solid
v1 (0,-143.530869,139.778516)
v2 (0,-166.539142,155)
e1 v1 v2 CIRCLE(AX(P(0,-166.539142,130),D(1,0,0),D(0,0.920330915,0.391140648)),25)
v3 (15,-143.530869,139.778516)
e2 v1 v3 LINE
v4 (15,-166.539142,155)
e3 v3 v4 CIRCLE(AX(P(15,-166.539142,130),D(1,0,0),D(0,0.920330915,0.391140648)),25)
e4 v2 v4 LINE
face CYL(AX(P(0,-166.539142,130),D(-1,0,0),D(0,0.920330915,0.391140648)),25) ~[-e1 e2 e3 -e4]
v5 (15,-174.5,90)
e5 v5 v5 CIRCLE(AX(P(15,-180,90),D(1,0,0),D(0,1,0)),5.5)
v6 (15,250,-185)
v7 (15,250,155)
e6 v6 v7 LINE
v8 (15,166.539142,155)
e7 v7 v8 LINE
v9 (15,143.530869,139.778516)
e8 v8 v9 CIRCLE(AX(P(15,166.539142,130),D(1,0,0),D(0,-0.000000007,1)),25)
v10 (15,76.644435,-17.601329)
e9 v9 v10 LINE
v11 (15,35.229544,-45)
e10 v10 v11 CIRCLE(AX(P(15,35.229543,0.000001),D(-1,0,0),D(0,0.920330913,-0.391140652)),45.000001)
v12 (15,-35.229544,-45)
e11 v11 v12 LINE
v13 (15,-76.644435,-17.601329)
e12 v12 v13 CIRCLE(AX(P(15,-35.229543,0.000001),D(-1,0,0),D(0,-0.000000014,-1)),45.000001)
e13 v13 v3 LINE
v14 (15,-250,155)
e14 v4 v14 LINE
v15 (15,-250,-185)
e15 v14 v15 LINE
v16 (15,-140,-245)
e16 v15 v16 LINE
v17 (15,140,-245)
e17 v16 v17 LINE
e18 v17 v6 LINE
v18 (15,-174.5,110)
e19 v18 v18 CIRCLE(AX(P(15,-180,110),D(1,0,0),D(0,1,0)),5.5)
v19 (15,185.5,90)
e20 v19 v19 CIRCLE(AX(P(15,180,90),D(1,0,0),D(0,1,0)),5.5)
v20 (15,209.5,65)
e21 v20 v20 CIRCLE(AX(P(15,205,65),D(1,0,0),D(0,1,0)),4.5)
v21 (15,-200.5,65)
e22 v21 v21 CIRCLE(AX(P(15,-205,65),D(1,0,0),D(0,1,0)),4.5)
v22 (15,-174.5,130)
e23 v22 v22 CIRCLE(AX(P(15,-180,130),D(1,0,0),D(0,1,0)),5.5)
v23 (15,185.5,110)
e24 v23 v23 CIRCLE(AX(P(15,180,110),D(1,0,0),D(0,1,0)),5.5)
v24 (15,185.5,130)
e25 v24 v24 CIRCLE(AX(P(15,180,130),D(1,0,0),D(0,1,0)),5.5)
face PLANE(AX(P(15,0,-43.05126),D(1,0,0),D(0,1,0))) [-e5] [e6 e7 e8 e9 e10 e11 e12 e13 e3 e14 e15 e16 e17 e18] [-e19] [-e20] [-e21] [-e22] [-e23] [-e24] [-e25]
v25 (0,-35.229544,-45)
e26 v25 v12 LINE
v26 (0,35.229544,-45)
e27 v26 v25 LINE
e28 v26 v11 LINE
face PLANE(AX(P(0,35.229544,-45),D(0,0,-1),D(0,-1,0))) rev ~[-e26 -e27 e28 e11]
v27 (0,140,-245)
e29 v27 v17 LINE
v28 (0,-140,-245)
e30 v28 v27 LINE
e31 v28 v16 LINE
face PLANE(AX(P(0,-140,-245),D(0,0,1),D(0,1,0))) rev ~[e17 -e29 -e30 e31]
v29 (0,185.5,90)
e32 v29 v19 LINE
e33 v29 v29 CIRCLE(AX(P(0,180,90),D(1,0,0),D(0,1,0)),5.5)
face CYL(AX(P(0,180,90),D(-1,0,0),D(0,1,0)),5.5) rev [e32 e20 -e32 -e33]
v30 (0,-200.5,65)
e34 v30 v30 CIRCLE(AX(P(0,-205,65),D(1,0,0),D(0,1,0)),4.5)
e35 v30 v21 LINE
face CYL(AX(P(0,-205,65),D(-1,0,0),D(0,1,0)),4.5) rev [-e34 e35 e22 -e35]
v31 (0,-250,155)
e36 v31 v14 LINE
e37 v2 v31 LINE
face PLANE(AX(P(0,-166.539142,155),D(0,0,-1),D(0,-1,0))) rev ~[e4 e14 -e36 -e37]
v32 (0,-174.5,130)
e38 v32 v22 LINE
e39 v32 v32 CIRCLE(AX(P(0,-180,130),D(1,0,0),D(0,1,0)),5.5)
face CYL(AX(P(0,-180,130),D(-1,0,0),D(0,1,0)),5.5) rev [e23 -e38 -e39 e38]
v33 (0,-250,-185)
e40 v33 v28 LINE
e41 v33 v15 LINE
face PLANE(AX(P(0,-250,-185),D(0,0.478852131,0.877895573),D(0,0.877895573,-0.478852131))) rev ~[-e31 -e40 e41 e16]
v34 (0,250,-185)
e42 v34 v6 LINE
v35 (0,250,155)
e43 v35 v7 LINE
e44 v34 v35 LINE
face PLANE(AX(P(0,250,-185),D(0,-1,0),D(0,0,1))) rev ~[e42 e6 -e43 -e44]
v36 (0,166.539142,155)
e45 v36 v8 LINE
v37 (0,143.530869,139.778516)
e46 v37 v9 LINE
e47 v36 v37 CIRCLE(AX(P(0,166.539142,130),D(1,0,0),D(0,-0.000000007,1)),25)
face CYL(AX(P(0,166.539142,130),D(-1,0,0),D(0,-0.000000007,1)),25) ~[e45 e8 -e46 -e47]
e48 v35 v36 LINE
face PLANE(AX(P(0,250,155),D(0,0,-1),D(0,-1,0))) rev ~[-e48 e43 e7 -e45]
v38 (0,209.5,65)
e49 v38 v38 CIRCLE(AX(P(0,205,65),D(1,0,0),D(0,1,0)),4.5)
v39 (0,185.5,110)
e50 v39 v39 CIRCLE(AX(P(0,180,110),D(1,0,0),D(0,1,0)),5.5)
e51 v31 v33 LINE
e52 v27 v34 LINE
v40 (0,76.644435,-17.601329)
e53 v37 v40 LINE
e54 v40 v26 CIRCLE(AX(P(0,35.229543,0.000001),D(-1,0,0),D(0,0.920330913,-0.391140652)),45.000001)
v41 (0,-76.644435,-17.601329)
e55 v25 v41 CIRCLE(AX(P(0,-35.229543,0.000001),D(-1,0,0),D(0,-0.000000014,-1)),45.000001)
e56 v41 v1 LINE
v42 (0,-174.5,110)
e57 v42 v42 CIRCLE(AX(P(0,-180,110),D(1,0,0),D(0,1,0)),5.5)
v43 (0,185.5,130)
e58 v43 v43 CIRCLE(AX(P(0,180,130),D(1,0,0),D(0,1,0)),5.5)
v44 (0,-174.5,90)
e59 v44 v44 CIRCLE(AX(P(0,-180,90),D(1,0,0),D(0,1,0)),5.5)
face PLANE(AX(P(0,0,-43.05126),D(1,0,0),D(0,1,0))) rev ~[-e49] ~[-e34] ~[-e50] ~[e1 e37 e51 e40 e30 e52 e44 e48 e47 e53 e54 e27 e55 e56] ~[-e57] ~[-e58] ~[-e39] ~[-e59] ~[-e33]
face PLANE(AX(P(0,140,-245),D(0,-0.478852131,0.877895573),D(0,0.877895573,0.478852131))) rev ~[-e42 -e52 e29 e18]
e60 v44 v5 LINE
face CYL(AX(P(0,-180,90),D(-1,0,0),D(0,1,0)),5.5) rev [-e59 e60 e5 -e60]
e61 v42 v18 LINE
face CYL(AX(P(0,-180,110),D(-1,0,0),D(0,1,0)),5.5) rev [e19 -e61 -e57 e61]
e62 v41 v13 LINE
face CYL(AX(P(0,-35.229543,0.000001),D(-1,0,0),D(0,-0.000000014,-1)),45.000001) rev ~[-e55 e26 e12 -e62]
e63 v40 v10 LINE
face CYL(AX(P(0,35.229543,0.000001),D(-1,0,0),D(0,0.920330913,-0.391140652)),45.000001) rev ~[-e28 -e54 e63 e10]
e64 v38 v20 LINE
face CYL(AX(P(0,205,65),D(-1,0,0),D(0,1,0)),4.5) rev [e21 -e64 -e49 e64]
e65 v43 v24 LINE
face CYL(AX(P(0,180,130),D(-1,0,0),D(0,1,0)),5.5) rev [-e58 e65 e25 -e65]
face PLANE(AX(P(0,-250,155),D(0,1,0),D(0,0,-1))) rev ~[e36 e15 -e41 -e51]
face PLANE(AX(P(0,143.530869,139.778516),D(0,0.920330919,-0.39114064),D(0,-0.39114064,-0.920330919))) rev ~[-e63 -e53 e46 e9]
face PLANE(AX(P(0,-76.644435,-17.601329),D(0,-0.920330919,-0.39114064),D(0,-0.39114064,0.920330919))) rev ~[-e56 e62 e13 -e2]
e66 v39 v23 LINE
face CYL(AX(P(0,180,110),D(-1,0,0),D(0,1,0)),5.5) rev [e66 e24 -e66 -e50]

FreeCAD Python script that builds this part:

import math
import FreeCAD as App
import Part
import Sketcher

V = App.Vector

doc = App.newDocument("Part")
body = doc.addObject("PartDesign::Body", "Body")

# Sketch on YZ plane
sketch1 = body.newObject("Sketcher::SketchObject", "Sketch")
sketch1.AttachmentSupport = (doc.getObject("YZ_Plane"), [""])
sketch1.MapMode = "FlatFace"
sketch1.addGeometry(Part.LineSegment(V(-166.5, 155, 0), V(-250, 155, 0)), False)
sketch1.addGeometry(Part.LineSegment(V(-250, 155, 0), V(-250, -185, 0)), False)
sketch1.addGeometry(Part.LineSegment(V(-250, -185, 0), V(-140, -245, 0)), False)
sketch1.addGeometry(Part.LineSegment(V(-140, -245, 0), V(140, -245, 0)), False)
sketch1.addGeometry(Part.LineSegment(V(140, -245, 0), V(250, -185, 0)), False)
sketch1.addGeometry(Part.LineSegment(V(250, -185, 0), V(250, 155, 0)), False)
sketch1.addGeometry(Part.LineSegment(V(250, 155, 0), V(166.5, 155, 0)), False)
sketch1.addGeometry(Part.ArcOfCircle(Part.Circle(V(166.5, 130, 0), V(0, 0, 1), 25), math.radians(90), math.radians(157)), False)
sketch1.addGeometry(Part.LineSegment(V(143.5, 139.8, 0), V(76.6, -17.6, 0)), False)
sketch1.addGeometry(Part.ArcOfCircle(Part.Circle(V(35.2, 0, 0), V(0, 0, 1), 45), math.radians(-90), math.radians(-23)), False)
sketch1.addGeometry(Part.LineSegment(V(35.2, -45, 0), V(-35.2, -45, 0)), False)
sketch1.addGeometry(Part.ArcOfCircle(Part.Circle(V(-35.2, 0, 0), V(0, 0, 1), 45), math.radians(-157), math.radians(-90)), False)
sketch1.addGeometry(Part.LineSegment(V(-76.6, -17.6, 0), V(-143.5, 139.8, 0)), False)
sketch1.addGeometry(Part.ArcOfCircle(Part.Circle(V(-166.5, 130, 0), V(0, 0, 1), 25), math.radians(23), math.radians(90)), False)
sketch1.addGeometry(Part.Circle(V(-205, 65, 0), V(0, 0, 1), 4.5), False)
sketch1.addGeometry(Part.Circle(V(-180, 90, 0), V(0, 0, 1), 5.5), False)
sketch1.addGeometry(Part.Circle(V(205, 65, 0), V(0, 0, 1), 4.5), False)
sketch1.addGeometry(Part.Circle(V(180, 90, 0), V(0, 0, 1), 5.5), False)
sketch1.addGeometry(Part.Circle(V(-180, 110, 0), V(0, 0, 1), 5.5), False)
sketch1.addGeometry(Part.Circle(V(-180, 130, 0), V(0, 0, 1), 5.5), False)
sketch1.addGeometry(Part.Circle(V(180, 110, 0), V(0, 0, 1), 5.5), False)
sketch1.addGeometry(Part.Circle(V(180, 130, 0), V(0, 0, 1), 5.5), False)
sketch1.addConstraint(Sketcher.Constraint("Coincident", 0, 2, 1, 1))
sketch1.addConstraint(Sketcher.Constraint("Coincident", 1, 2, 2, 1))
sketch1.addConstraint(Sketcher.Constraint("Coincident", 2, 2, 3, 1))
sketch1.addConstraint(Sketcher.Constraint("Coincident", 3, 2, 4, 1))
sketch1.addConstraint(Sketcher.Constraint("Coincident", 4, 2, 5, 1))
sketch1.addConstraint(Sketcher.Constraint("Coincident", 5, 2, 6, 1))
sketch1.addConstraint(Sketcher.Constraint("Tangent", 6, 2, 7, 1))
sketch1.addConstraint(Sketcher.Constraint("Tangent", 7, 2, 8, 1))
sketch1.addConstraint(Sketcher.Constraint("Tangent", 8, 2, 9, 2))
sketch1.addConstraint(Sketcher.Constraint("Tangent", 9, 1, 10, 1))
sketch1.addConstraint(Sketcher.Constraint("Tangent", 10, 2, 11, 2))
sketch1.addConstraint(Sketcher.Constraint("Tangent", 11, 1, 12, 1))
sketch1.addConstraint(Sketcher.Constraint("Tangent", 12, 2, 13, 1))
sketch1.addConstraint(Sketcher.Constraint("Tangent", 13, 2, 0, 1))
sketch1.addConstraint(Sketcher.Constraint("Horizontal", 0))
sketch1.addConstraint(Sketcher.Constraint("Vertical", 1))
sketch1.addConstraint(Sketcher.Constraint("Horizontal", 3))
sketch1.addConstraint(Sketcher.Constraint("Vertical", 5))
sketch1.addConstraint(Sketcher.Constraint("Horizontal", 6))
sketch1.addConstraint(Sketcher.Constraint("Horizontal", 10))
sketch1.addConstraint(Sketcher.Constraint("Equal", 9, 11))
sketch1.addConstraint(Sketcher.Constraint("Equal", 7, 13))
sketch1.addConstraint(Sketcher.Constraint("Equal", 14, 16))
sketch1.addConstraint(Sketcher.Constraint("Equal", 15, 17))
sketch1.addConstraint(Sketcher.Constraint("Equal", 17, 18))
sketch1.addConstraint(Sketcher.Constraint("Equal", 18, 19))
sketch1.addConstraint(Sketcher.Constraint("Equal", 19, 20))
sketch1.addConstraint(Sketcher.Constraint("Equal", 20, 21))
sketch1.addConstraint(Sketcher.Constraint("Symmetric", 9, 3, 11, 3, -1, 1))
sketch1.addConstraint(Sketcher.Constraint("Symmetric", 7, 3, 13, 3, -2))
sketch1.addConstraint(Sketcher.Constraint("Symmetric", 14, 3, 16, 3, -2))
sketch1.addConstraint(Sketcher.Constraint("Symmetric", 15, 3, 17, 3, -2))
sketch1.addConstraint(Sketcher.Constraint("Symmetric", 18, 3, 20, 3, -2))
sketch1.addConstraint(Sketcher.Constraint("Symmetric", 19, 3, 21, 3, -2))
sketch1.addConstraint(Sketcher.Constraint("Symmetric", 1, 2, 4, 2, -2))
sketch1.addConstraint(Sketcher.Constraint("Horizontal", 13, 3, 19, 3))
sketch1.addConstraint(Sketcher.Constraint("Vertical", 15, 3, 18, 3))
sketch1.addConstraint(Sketcher.Constraint("Vertical", 18, 3, 19, 3))
sketch1.addConstraint(Sketcher.Constraint("Equal", 2, 4))
sketch1.addConstraint(Sketcher.Constraint("Diameter", 14, 9.0))
sketch1.addConstraint(Sketcher.Constraint("Diameter", 15, 11.0))
sketch1.addConstraint(Sketcher.Constraint("Radius", 7, 25.0))
sketch1.addConstraint(Sketcher.Constraint("Radius", 9, 45.000001))
sketch1.addConstraint(Sketcher.Constraint("DistanceX", 3, 1, 3, 2, 280.0))
sketch1.addConstraint(Sketcher.Constraint("DistanceY", 1, 2, 1, 1, 340.0))
sketch1.addConstraint(Sketcher.Constraint("DistanceY", -1, 1, 7, 3, 130.0))
sketch1.addConstraint(Sketcher.Constraint("DistanceX", 14, 3, -1, 1, 205.0))
sketch1.addConstraint(Sketcher.Constraint("DistanceY", -1, 1, 14, 3, 65.0))
sketch1.addConstraint(Sketcher.Constraint("DistanceX", 15, 3, -1, 1, 180.0))
sketch1.addConstraint(Sketcher.Constraint("DistanceY", -1, 1, 15, 3, 90.0))
sketch1.addConstraint(Sketcher.Constraint("DistanceY", -1, 1, 18, 3, 110.0))
sketch1.addConstraint(Sketcher.Constraint("DistanceX", 0, 2, -1, 1, 250.0))
sketch1.addConstraint(Sketcher.Constraint("DistanceY", 2, 2, -1, 1, 245.0))
sketch1.addConstraint(Sketcher.Constraint("DistanceX", 0, 2, 0, 1, 83.460858))
sketch1.addConstraint(Sketcher.Constraint("DistanceX", 9, 3, 7, 3, 131.309599))
pad1 = body.newObject("PartDesign::Pad", "Pad")
pad1.Profile = sketch1
pad1.Length = 15

doc.recompute()
